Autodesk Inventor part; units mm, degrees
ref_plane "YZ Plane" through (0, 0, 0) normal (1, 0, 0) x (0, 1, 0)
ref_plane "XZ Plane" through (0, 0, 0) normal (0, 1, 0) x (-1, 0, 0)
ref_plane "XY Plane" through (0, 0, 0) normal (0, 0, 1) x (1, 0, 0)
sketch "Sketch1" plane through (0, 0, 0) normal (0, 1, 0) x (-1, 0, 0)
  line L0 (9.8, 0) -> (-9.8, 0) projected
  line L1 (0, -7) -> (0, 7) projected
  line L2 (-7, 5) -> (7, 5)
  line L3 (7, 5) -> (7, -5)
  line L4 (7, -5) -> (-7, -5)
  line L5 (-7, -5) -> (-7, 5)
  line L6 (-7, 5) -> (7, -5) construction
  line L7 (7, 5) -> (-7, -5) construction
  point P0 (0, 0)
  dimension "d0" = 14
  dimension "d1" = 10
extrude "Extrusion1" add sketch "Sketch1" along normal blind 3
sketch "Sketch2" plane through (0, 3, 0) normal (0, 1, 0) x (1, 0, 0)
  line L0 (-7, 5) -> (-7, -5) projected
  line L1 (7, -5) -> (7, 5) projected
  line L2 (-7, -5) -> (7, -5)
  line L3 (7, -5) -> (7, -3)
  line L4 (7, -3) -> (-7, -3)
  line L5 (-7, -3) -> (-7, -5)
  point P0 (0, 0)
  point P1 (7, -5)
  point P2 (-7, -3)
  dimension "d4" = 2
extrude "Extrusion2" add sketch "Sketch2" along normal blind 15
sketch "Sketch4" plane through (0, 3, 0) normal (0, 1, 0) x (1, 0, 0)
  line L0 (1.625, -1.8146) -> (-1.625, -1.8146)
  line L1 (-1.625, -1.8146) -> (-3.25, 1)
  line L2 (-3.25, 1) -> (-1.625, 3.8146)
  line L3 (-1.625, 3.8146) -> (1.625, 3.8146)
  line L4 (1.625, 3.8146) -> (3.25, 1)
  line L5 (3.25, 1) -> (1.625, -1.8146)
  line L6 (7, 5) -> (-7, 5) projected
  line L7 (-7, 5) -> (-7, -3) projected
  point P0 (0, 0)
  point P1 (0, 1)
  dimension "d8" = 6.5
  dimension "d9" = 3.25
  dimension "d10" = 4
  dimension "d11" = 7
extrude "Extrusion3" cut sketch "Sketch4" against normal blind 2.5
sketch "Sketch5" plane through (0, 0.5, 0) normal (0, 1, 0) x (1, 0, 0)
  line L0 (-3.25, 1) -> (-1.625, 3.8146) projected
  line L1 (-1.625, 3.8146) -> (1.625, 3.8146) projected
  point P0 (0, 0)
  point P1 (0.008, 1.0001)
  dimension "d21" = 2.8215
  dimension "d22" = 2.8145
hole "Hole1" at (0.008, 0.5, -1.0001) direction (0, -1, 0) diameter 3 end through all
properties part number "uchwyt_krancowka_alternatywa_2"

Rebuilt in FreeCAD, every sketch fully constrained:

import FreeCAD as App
import Part
import Sketcher
from FreeCAD import Vector
Q = App.Units.Quantity

doc = App.newDocument("Part")
body = doc.addObject("PartDesign::Body", "Body")

sketch1 = body.newObject("Sketcher::SketchObject", "Sketch")
sketch1.AttachmentSupport = (doc.getObject("XZ_Plane"), [""])
sketch1.MapMode = "FlatFace"
sketch1.addGeometry([
    Part.LineSegment(Vector(-7, -5, 0), Vector(-7, 5, 0)),
    Part.LineSegment(Vector(-7, 5, 0), Vector(7, 5, 0)),
    Part.LineSegment(Vector(7, 5, 0), Vector(7, -5, 0)),
    Part.LineSegment(Vector(7, -5, 0), Vector(-7, -5, 0)),
], False)
sketch1.addConstraint([
    Sketcher.Constraint("Coincident", 0, 2, 1, 1),
    Sketcher.Constraint("Coincident", 1, 2, 2, 1),
    Sketcher.Constraint("Coincident", 2, 2, 3, 1),
    Sketcher.Constraint("Coincident", 3, 2, 0, 1),
    Sketcher.Constraint("Vertical", 0),
    Sketcher.Constraint("Horizontal", 1),
    Sketcher.Constraint("Vertical", 2),
    Sketcher.Constraint("Horizontal", 3),
    Sketcher.Constraint("Symmetric", 0, 2, 2, 2, -1, 1),
    Sketcher.Constraint("DistanceX", 1, 1, 1, 2, Q("14 mm")),
    Sketcher.Constraint("DistanceY", 0, 1, 0, 2, Q("10 mm")),
])
pad1 = body.newObject("PartDesign::Pad", "Pad")
pad1.Profile = sketch1
pad1.Length = 3
pad1.Reversed = True

sketch2 = body.newObject("Sketcher::SketchObject", "Sketch001")
sketch2.AttachmentSupport = (doc.getObject("XZ_Plane"), [""])
sketch2.MapMode = "FlatFace"
sketch2.AttachmentOffset = App.Placement(Vector(0, 0, -3), App.Rotation())
sketch2.addGeometry([
    Part.LineSegment(Vector(7, 3, 0), Vector(-7, 3, 0)),
    Part.LineSegment(Vector(-7, 3, 0), Vector(-7, 5, 0)),
    Part.LineSegment(Vector(-7, 5, 0), Vector(7, 5, 0)),
    Part.LineSegment(Vector(7, 5, 0), Vector(7, 3, 0)),
], False)
sketch2.addConstraint([
    Sketcher.Constraint("Coincident", 0, 2, 1, 1),
    Sketcher.Constraint("Coincident", 1, 2, 2, 1),
    Sketcher.Constraint("Coincident", 2, 2, 3, 1),
    Sketcher.Constraint("Coincident", 3, 2, 0, 1),
    Sketcher.Constraint("Horizontal", 0),
    Sketcher.Constraint("Vertical", 1),
    Sketcher.Constraint("Horizontal", 2),
    Sketcher.Constraint("Vertical", 3),
    Sketcher.Constraint("DistanceY", 1, 1, 1, 2, Q("2 mm")),
    Sketcher.Constraint("DistanceX", 0, 2, 0, 1, Q("14 mm")),
    Sketcher.Constraint("DistanceX", 0, 2, -1, 1, Q("7 mm")),
    Sketcher.Constraint("DistanceY", -1, 1, 0, 2, Q("3 mm")),
])
pad2 = body.newObject("PartDesign::Pad", "Pad001")
pad2.Profile = sketch2
pad2.Length = 15
pad2.Reversed = True

sketch3 = body.newObject("Sketcher::SketchObject", "Sketch002")
sketch3.AttachmentSupport = (doc.getObject("XZ_Plane"), [""])
sketch3.MapMode = "FlatFace"
sketch3.AttachmentOffset = App.Placement(Vector(0, 0, -3), App.Rotation())
sketch3.addGeometry([
    Part.LineSegment(Vector(-1.6, 1.8, 0), Vector(1.6, 1.8, 0)),
    Part.LineSegment(Vector(1.6, 1.8, 0), Vector(3.2, -1, 0)),
    Part.LineSegment(Vector(3.2, -1, 0), Vector(1.6, -3.8, 0)),
    Part.LineSegment(Vector(1.6, -3.8, 0), Vector(-1.6, -3.8, 0)),
    Part.LineSegment(Vector(-1.6, -3.8, 0), Vector(-3.2, -1, 0)),
    Part.LineSegment(Vector(-3.2, -1, 0), Vector(-1.6, 1.8, 0)),
], False)
sketch3.addConstraint([
    Sketcher.Constraint("Coincident", 0, 2, 1, 1),
    Sketcher.Constraint("Coincident", 1, 2, 2, 1),
    Sketcher.Constraint("Coincident", 2, 2, 3, 1),
    Sketcher.Constraint("Coincident", 3, 2, 4, 1),
    Sketcher.Constraint("Coincident", 4, 2, 5, 1),
    Sketcher.Constraint("Coincident", 5, 2, 0, 1),
    Sketcher.Constraint("Horizontal", 0),
    Sketcher.Constraint("Horizontal", 3),
    Sketcher.Constraint("Symmetric", 1, 2, 4, 2, -2),
    Sketcher.Constraint("Parallel", 1, 4),
    Sketcher.Constraint("Parallel", 2, 5),
    Sketcher.Constraint("Vertical", 0, 2, 2, 2),
    Sketcher.Constraint("Vertical", 3, 2, 5, 2),
    Sketcher.Constraint("DistanceX", 0, 1, 0, 2, Q("3.25 mm")),
    Sketcher.Constraint("DistanceX", 4, 2, 1, 2, Q("6.5 mm")),
    Sketcher.Constraint("Distance", 1, Q("3.25 mm")),
    Sketcher.Constraint("DistanceY", 1, 2, -1, 1, Q("1 mm")),
])
pocket1 = body.newObject("PartDesign::Pocket", "Pocket")
pocket1.Profile = sketch3
pocket1.Length = 2.5
pocket1.Reversed = True

sketch4 = body.newObject("Sketcher::SketchObject", "Sketch003")
sketch4.AttachmentSupport = (doc.getObject("XZ_Plane"), [""])
sketch4.MapMode = "FlatFace"
sketch4.AttachmentOffset = App.Placement(Vector(0, 0, -0.5), App.Rotation())
sketch4.addGeometry(Part.Circle(Vector(0, -1, 0), Vector(0, 0, 1), 1.5), False)
sketch4.addConstraint([
    Sketcher.Constraint("Diameter", 0, Q("3 mm")),
    Sketcher.Constraint("DistanceY", 0, 3, -1, 1, Q("1 mm")),
    Sketcher.Constraint("DistanceX", -1, 1, 0, 3, Q("0.008 mm")),
])
doc.recompute()
hole = body.newObject("PartDesign::Hole", "Hole")
hole.Profile = sketch4
hole.ThreadType = "None"
hole.Diameter = 3
hole.DepthType = "ThroughAll"
hole.Reversed = True

doc.recompute()
